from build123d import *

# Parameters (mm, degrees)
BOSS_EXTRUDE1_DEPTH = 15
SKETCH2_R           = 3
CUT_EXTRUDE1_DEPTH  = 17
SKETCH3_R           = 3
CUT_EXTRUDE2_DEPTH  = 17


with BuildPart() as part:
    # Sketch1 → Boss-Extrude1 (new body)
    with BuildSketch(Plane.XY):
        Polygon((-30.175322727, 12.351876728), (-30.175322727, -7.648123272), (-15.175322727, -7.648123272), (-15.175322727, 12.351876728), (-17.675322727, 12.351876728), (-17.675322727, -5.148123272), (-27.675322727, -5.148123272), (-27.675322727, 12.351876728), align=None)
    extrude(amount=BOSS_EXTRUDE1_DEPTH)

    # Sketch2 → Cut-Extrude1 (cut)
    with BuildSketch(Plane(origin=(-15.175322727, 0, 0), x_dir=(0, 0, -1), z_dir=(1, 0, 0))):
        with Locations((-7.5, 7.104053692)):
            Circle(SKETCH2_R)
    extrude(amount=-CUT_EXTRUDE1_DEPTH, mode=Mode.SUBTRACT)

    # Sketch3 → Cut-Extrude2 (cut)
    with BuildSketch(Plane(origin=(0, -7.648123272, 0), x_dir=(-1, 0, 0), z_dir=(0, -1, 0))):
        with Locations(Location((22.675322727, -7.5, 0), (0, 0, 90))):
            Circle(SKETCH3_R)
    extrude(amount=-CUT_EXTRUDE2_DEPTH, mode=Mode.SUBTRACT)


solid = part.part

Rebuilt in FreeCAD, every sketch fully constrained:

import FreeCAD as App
import Part
import Sketcher

V = App.Vector


def add_polygon(sketch, points):
    """Adds a closed chain of lines whose ends are joined by coincident constraints."""
    first, n = sketch.GeometryCount, len(points)
    for a, b in zip(points, points[1:] + points[:1]):
        sketch.addGeometry(Part.LineSegment(App.Vector(*a, 0), App.Vector(*b, 0)), False)
    for i in range(n):
        sketch.addConstraint(Sketcher.Constraint("Coincident", first + i, 2, first + (i + 1) % n, 1))

doc = App.newDocument("Part")
body = doc.addObject("PartDesign::Body", "Body")

sketch1 = doc.addObject("Sketcher::SketchObject", "Sketch")
body.addObject(sketch1)
sketch1.AttachmentSupport = (doc.XY_Plane, [""])
sketch1.MapMode = "FlatFace"
add_polygon(sketch1, [(-30.175323, 12.351877), (-30.175323, -7.648123), (-15.175323, -7.648123), (-15.175323, 12.351877), (-17.675323, 12.351877), (-17.675323, -5.148123), (-27.675323, -5.148123), (-27.675323, 12.351877)])
sketch1.addConstraint(Sketcher.Constraint("Vertical", 0))
sketch1.addConstraint(Sketcher.Constraint("Horizontal", 1))
sketch1.addConstraint(Sketcher.Constraint("Vertical", 2))
sketch1.addConstraint(Sketcher.Constraint("Horizontal", 3))
sketch1.addConstraint(Sketcher.Constraint("Vertical", 4))
sketch1.addConstraint(Sketcher.Constraint("Horizontal", 5))
sketch1.addConstraint(Sketcher.Constraint("Vertical", 6))
sketch1.addConstraint(Sketcher.Constraint("Horizontal", 7))
sketch1.addConstraint(Sketcher.Constraint("Horizontal", 3, 2, 6, 2))
sketch1.addConstraint(Sketcher.Constraint("Equal", 3, 7))
sketch1.addConstraint(Sketcher.Constraint("DistanceX", 1, 1, 1, 2, 15.0))
sketch1.addConstraint(Sketcher.Constraint("DistanceX", 5, 2, 5, 1, 10.0))
sketch1.addConstraint(Sketcher.Constraint("DistanceY", 0, 2, 0, 1, 20.0))
sketch1.addConstraint(Sketcher.Constraint("DistanceY", 4, 2, 4, 1, 17.5))
sketch1.addConstraint(Sketcher.Constraint("DistanceX", 0, 2, -1, 1, 30.175323))
sketch1.addConstraint(Sketcher.Constraint("DistanceY", 0, 2, -1, 1, 7.648123))
pad1 = doc.addObject("PartDesign::Pad", "Pad")
body.addObject(pad1)
pad1.Profile = sketch1
pad1.Length = 15

sketch2 = doc.addObject("Sketcher::SketchObject", "Sketch001")
body.addObject(sketch2)
sketch2.AttachmentSupport = (doc.YZ_Plane, [""])
sketch2.MapMode = "FlatFace"
sketch2.AttachmentOffset = App.Placement(V(0, 0, -15.175323), App.Rotation())
sketch2.addGeometry(Part.Circle(V(7.104054, 7.5, 0), V(0, 0, 1), 3), False)
sketch2.addConstraint(Sketcher.Constraint("Diameter", 0, 6.0))
sketch2.addConstraint(Sketcher.Constraint("DistanceY", -1, 1, 0, 3, 7.5))
sketch2.addConstraint(Sketcher.Constraint("DistanceX", -1, 1, 0, 3, 7.104054))
pocket1 = doc.addObject("PartDesign::Pocket", "Pocket")
body.addObject(pocket1)
pocket1.Profile = sketch2
pocket1.Length = 17

sketch3 = doc.addObject("Sketcher::SketchObject", "Sketch002")
body.addObject(sketch3)
sketch3.AttachmentSupport = (doc.XZ_Plane, [""])
sketch3.MapMode = "FlatFace"
sketch3.AttachmentOffset = App.Placement(V(0, 0, 7.648123), App.Rotation())
sketch3.addGeometry(Part.Circle(V(-22.675323, 7.5, 0), V(0, 0, 1), 3), False)
sketch3.addConstraint(Sketcher.Constraint("Diameter", 0, 6.0))
sketch3.addConstraint(Sketcher.Constraint("DistanceY", -1, 1, 0, 3, 7.5))
sketch3.addConstraint(Sketcher.Constraint("DistanceX", 0, 3, -1, 1, 22.675323))
pocket2 = doc.addObject("PartDesign::Pocket", "Pocket001")
body.addObject(pocket2)
pocket2.Profile = sketch3
pocket2.Length = 17

doc.recompute()
